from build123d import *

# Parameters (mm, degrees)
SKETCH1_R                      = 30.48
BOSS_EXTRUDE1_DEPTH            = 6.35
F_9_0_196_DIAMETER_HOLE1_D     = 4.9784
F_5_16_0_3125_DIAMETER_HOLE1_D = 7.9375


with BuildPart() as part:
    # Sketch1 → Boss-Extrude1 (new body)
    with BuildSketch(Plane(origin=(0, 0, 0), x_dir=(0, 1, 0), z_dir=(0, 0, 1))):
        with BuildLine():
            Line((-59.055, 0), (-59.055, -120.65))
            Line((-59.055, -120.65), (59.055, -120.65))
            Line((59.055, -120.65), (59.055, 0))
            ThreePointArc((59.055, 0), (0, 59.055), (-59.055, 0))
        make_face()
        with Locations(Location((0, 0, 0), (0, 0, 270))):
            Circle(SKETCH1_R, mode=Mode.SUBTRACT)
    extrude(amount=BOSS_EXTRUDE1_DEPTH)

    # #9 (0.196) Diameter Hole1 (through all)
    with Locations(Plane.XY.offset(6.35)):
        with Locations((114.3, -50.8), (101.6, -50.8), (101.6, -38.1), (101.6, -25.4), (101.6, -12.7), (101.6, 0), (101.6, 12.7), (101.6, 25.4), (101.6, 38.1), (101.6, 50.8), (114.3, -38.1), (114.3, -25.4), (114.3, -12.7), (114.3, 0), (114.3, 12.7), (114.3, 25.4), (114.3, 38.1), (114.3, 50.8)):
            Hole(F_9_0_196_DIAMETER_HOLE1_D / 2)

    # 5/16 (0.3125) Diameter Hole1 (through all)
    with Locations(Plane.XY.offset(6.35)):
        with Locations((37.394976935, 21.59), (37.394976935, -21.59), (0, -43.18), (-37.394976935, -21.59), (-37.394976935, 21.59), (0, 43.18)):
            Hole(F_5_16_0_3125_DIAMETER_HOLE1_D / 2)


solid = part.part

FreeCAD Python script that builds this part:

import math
import FreeCAD as App
import Part
import Sketcher
Q = App.Units.Quantity

doc = App.newDocument("Part")
params = doc.addObject("Spreadsheet::Sheet", "Params")
for row, (alias, value) in enumerate([
    ("sketch1_diameter", "2.4 in"),
    ("sketch1_radius", "2.325 in"),
    ("sketch1_width", "4.75 in"),
    ("pad1_length", "0.25 in"),
    ("sketch2_diameter", "0.196 in"),
    ("hole_diameter", "0.196 in"),
    ("sketch3_diameter", "0.3125 in"),
    ("hole2_diameter", "0.3125 in"),
], start=1):
    params.set(f"A{row}", alias)
    params.set(f"B{row}", "=" + value)
    params.setAlias(f"B{row}", alias)

body = doc.addObject("PartDesign::Body", "Body")

sketch1 = body.newObject("Sketcher::SketchObject", "Sketch")
sketch1.AttachmentSupport = (doc.getObject("XY_Plane"), [""])
sketch1.MapMode = "FlatFace"
sketch1.addGeometry([
    Part.LineSegment(App.Vector(0, -59, 0), App.Vector(121, -59, 0)),
    Part.LineSegment(App.Vector(121, -59, 0), App.Vector(121, 59, 0)),
    Part.LineSegment(App.Vector(121, 59, 0), App.Vector(0, 59, 0)),
    Part.ArcOfCircle(Part.Circle(App.Vector(0, 0, 0), App.Vector(0, 0, 1), 59), math.radians(90), math.radians(270)),
    Part.Circle(App.Vector(0, 0, 0), App.Vector(0, 0, 1), 30),
], False)
sketch1.addConstraint([
    Sketcher.Constraint("Coincident", 0, 2, 1, 1),
    Sketcher.Constraint("Coincident", 1, 2, 2, 1),
    Sketcher.Constraint("Tangent", 2, 2, 3, 1),
    Sketcher.Constraint("Tangent", 3, 2, 0, 1),
    Sketcher.Constraint("Horizontal", 0),
    Sketcher.Constraint("Vertical", 1),
    Sketcher.Constraint("Horizontal", 2),
    Sketcher.Constraint("Coincident", 3, 3, -1, 1),
    Sketcher.Constraint("Coincident", 4, 3, -1, 1),
    Sketcher.Constraint("Diameter", 4, Q("2.4 in")),
    Sketcher.Constraint("Radius", 3, Q("2.325 in")),
    Sketcher.Constraint("DistanceX", 0, 1, 0, 2, Q("4.75 in")),
])
sketch1.setExpression("Constraints[9]", "Params.sketch1_diameter")
sketch1.setExpression("Constraints[10]", "Params.sketch1_radius")
sketch1.setExpression("Constraints[11]", "Params.sketch1_width")
pad1 = body.newObject("PartDesign::Pad", "Pad")
pad1.Profile = sketch1
pad1.setExpression("Length", "Params.pad1_length")

sketch2 = body.newObject("Sketcher::SketchObject", "Sketch001")
sketch2.AttachmentSupport = (doc.getObject("XY_Plane"), [""])
sketch2.MapMode = "FlatFace"
sketch2.AttachmentOffset = App.Placement(App.Vector(0, 0, 0.25 * 25.4), App.Rotation())
sketch2.addGeometry([
    Part.Circle(App.Vector(114.3, -50.8, 0), App.Vector(0, 0, 1), 2.5),
    Part.Circle(App.Vector(101.6, -50.8, 0), App.Vector(0, 0, 1), 2.5),
    Part.Circle(App.Vector(101.6, -38.1, 0), App.Vector(0, 0, 1), 2.5),
    Part.Circle(App.Vector(101.6, -25.4, 0), App.Vector(0, 0, 1), 2.5),
    Part.Circle(App.Vector(101.6, -12.7, 0), App.Vector(0, 0, 1), 2.5),
    Part.Circle(App.Vector(101.6, 0, 0), App.Vector(0, 0, 1), 2.5),
    Part.Circle(App.Vector(101.6, 12.7, 0), App.Vector(0, 0, 1), 2.5),
    Part.Circle(App.Vector(101.6, 25.4, 0), App.Vector(0, 0, 1), 2.5),
    Part.Circle(App.Vector(101.6, 38.1, 0), App.Vector(0, 0, 1), 2.5),
    Part.Circle(App.Vector(101.6, 50.8, 0), App.Vector(0, 0, 1), 2.5),
    Part.Circle(App.Vector(114.3, -38.1, 0), App.Vector(0, 0, 1), 2.5),
    Part.Circle(App.Vector(114.3, -25.4, 0), App.Vector(0, 0, 1), 2.5),
    Part.Circle(App.Vector(114.3, -12.7, 0), App.Vector(0, 0, 1), 2.5),
    Part.Circle(App.Vector(114.3, 0, 0), App.Vector(0, 0, 1), 2.5),
    Part.Circle(App.Vector(114.3, 12.7, 0), App.Vector(0, 0, 1), 2.5),
    Part.Circle(App.Vector(114.3, 25.4, 0), App.Vector(0, 0, 1), 2.5),
    Part.Circle(App.Vector(114.3, 38.1, 0), App.Vector(0, 0, 1), 2.5),
    Part.Circle(App.Vector(114.3, 50.8, 0), App.Vector(0, 0, 1), 2.5),
], False)
sketch2.addConstraint([
    Sketcher.Constraint("Equal", 0, 1),
    Sketcher.Constraint("Equal", 1, 2),
    Sketcher.Constraint("Equal", 2, 3),
    Sketcher.Constraint("Equal", 3, 4),
    Sketcher.Constraint("Equal", 4, 5),
    Sketcher.Constraint("Equal", 5, 6),
    Sketcher.Constraint("Equal", 6, 7),
    Sketcher.Constraint("Equal", 7, 8),
    Sketcher.Constraint("Equal", 8, 9),
    Sketcher.Constraint("Equal", 9, 10),
    Sketcher.Constraint("Equal", 10, 11),
    Sketcher.Constraint("Equal", 11, 12),
    Sketcher.Constraint("Equal", 12, 13),
    Sketcher.Constraint("Equal", 13, 14),
    Sketcher.Constraint("Equal", 14, 15),
    Sketcher.Constraint("Equal", 15, 16),
    Sketcher.Constraint("Equal", 16, 17),
    Sketcher.Constraint("Symmetric", 4, 3, 6, 3, -1),
    Sketcher.Constraint("Symmetric", 3, 3, 7, 3, -1),
    Sketcher.Constraint("Symmetric", 2, 3, 8, 3, -1),
    Sketcher.Constraint("Symmetric", 1, 3, 9, 3, -1),
    Sketcher.Constraint("Symmetric", 12, 3, 14, 3, -1),
    Sketcher.Constraint("Symmetric", 11, 3, 15, 3, -1),
    Sketcher.Constraint("Symmetric", 10, 3, 16, 3, -1),
    Sketcher.Constraint("Symmetric", 0, 3, 17, 3, -1),
    Sketcher.Constraint("PointOnObject", 5, 3, -1),
    Sketcher.Constraint("PointOnObject", 13, 3, -1),
    Sketcher.Constraint("Horizontal", 0, 3, 1, 3),
    Sketcher.Constraint("Horizontal", 2, 3, 10, 3),
    Sketcher.Constraint("Horizontal", 3, 3, 11, 3),
    Sketcher.Constraint("Horizontal", 4, 3, 12, 3),
    Sketcher.Constraint("Vertical", 1, 3, 2, 3),
    Sketcher.Constraint("Vertical", 2, 3, 3, 3),
    Sketcher.Constraint("Vertical", 3, 3, 4, 3),
    Sketcher.Constraint("Vertical", 4, 3, 5, 3),
    Sketcher.Constraint("Vertical", 0, 3, 10, 3),
    Sketcher.Constraint("Vertical", 10, 3, 11, 3),
    Sketcher.Constraint("Vertical", 11, 3, 12, 3),
    Sketcher.Constraint("Vertical", 12, 3, 13, 3),
    Sketcher.Constraint("Diameter", 0, Q("0.196 in")),
    Sketcher.Constraint("DistanceY", 0, 3, -1, 1, Q("2 in")),
    Sketcher.Constraint("DistanceX", -1, 1, 1, 3, Q("4 in")),
    Sketcher.Constraint("DistanceY", 3, 3, -1, 1, Q("1 in")),
    Sketcher.Constraint("DistanceY", 2, 3, 4, 3, Q("1 in")),
    Sketcher.Constraint("DistanceY", 4, 3, 6, 3, Q("1 in")),
    Sketcher.Constraint("DistanceX", -1, 1, 0, 3, Q("4.5 in")),
])
sketch2.setExpression("Constraints[39]", "Params.sketch2_diameter")
doc.recompute()
hole = body.newObject("PartDesign::Hole", "Hole")
hole.Profile = sketch2
hole.ThreadType = "None"
hole.setExpression("Diameter", "Params.hole_diameter")
hole.DepthType = "ThroughAll"

sketch3 = body.newObject("Sketcher::SketchObject", "Sketch002")
sketch3.AttachmentSupport = (doc.getObject("XY_Plane"), [""])
sketch3.MapMode = "FlatFace"
sketch3.AttachmentOffset = App.Placement(App.Vector(0, 0, 0.25 * 25.4), App.Rotation())
sketch3.addGeometry([
    Part.Circle(App.Vector(37.4, 21.6, 0), App.Vector(0, 0, 1), 4),
    Part.Circle(App.Vector(37.4, -21.6, 0), App.Vector(0, 0, 1), 4),
    Part.Circle(App.Vector(0, -43.2, 0), App.Vector(0, 0, 1), 4),
    Part.Circle(App.Vector(-37.4, -21.6, 0), App.Vector(0, 0, 1), 4),
    Part.Circle(App.Vector(-37.4, 21.6, 0), App.Vector(0, 0, 1), 4),
    Part.Circle(App.Vector(0, 43.2, 0), App.Vector(0, 0, 1), 4),
], False)
sketch3.addConstraint([
    Sketcher.Constraint("Equal", 0, 1),
    Sketcher.Constraint("Equal", 1, 2),
    Sketcher.Constraint("Equal", 2, 3),
    Sketcher.Constraint("Equal", 3, 4),
    Sketcher.Constraint("Equal", 4, 5),
    Sketcher.Constraint("Symmetric", 0, 3, 3, 3, -1, 1),
    Sketcher.Constraint("Symmetric", 1, 3, 4, 3, -1, 1),
    Sketcher.Constraint("Symmetric", 2, 3, 5, 3, -1, 1),
    Sketcher.Constraint("Symmetric", 1, 3, 3, 3, -2),
    Sketcher.Constraint("PointOnObject", 2, 3, -2),
    Sketcher.Constraint("Diameter", 0, Q("0.3125 in")),
    Sketcher.Constraint("DistanceY", 2, 3, -1, 1, Q("1.7 in")),
    Sketcher.Constraint("DistanceY", 1, 3, 0, 3, Q("1.7 in")),
    Sketcher.Constraint("DistanceX", -1, 1, 0, 3, 37.394977),
])
sketch3.setExpression("Constraints[10]", "Params.sketch3_diameter")
doc.recompute()
hole2 = body.newObject("PartDesign::Hole", "Hole001")
hole2.Profile = sketch3
hole2.ThreadType = "None"
hole2.setExpression("Diameter", "Params.hole2_diameter")
hole2.DepthType = "ThroughAll"

doc.recompute()
